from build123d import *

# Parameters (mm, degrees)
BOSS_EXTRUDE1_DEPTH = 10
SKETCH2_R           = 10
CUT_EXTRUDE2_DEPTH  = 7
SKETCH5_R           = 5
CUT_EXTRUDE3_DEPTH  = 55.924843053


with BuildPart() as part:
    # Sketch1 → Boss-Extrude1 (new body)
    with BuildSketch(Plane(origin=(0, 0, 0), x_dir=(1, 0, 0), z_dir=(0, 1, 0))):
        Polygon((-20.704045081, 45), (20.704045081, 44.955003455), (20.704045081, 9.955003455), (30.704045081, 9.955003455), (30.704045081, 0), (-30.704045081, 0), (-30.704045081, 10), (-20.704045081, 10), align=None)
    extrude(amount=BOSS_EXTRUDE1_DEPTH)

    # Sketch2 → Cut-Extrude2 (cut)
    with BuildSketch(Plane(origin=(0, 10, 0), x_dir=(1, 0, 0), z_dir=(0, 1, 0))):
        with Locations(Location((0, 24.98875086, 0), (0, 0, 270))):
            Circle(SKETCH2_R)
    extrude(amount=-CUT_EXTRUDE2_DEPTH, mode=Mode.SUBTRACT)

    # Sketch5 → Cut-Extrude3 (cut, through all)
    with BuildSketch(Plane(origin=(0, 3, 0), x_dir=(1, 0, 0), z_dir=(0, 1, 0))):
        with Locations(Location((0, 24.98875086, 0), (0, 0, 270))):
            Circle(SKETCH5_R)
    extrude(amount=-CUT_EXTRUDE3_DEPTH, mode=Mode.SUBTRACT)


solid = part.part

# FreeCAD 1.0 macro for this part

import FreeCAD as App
import Part
import Sketcher
from FreeCAD import Vector


def add_polygon(sketch, points):
    """Adds a closed chain of lines whose ends are joined by coincident constraints."""
    first, n = sketch.GeometryCount, len(points)
    for a, b in zip(points, points[1:] + points[:1]):
        sketch.addGeometry(Part.LineSegment(App.Vector(*a, 0), App.Vector(*b, 0)), False)
    for i in range(n):
        sketch.addConstraint(Sketcher.Constraint("Coincident", first + i, 2, first + (i + 1) % n, 1))

doc = App.newDocument("Part")
body = doc.addObject("PartDesign::Body", "Body")

sketch1 = body.newObject("Sketcher::SketchObject", "Sketch")
sketch1.AttachmentSupport = (doc.getObject("XZ_Plane"), [""])
sketch1.MapMode = "FlatFace"
add_polygon(sketch1, [(20.704045, -44.955003), (-20.704045, -45), (-20.704045, -10), (-30.704045, -10), (-30.704045, 0), (30.704045, 0), (30.704045, -9.955003), (20.704045, -9.955003)])
sketch1.addConstraint(Sketcher.Constraint("Vertical", 1))
sketch1.addConstraint(Sketcher.Constraint("Horizontal", 2))
sketch1.addConstraint(Sketcher.Constraint("Vertical", 3))
sketch1.addConstraint(Sketcher.Constraint("Horizontal", 4))
sketch1.addConstraint(Sketcher.Constraint("Vertical", 5))
sketch1.addConstraint(Sketcher.Constraint("Horizontal", 6))
sketch1.addConstraint(Sketcher.Constraint("Vertical", 7))
sketch1.addConstraint(Sketcher.Constraint("Symmetric", 3, 2, 4, 2, -1, 1))
sketch1.addConstraint(Sketcher.Constraint("Equal", 2, 6))
sketch1.addConstraint(Sketcher.Constraint("Equal", 6, 3))
sketch1.addConstraint(Sketcher.Constraint("Equal", 1, 7))
sketch1.addConstraint(Sketcher.Constraint("DistanceX", 2, 2, 2, 1, 10.0))
sketch1.addConstraint(Sketcher.Constraint("DistanceY", 1, 1, 1, 2, 35.0))
sketch1.addConstraint(Sketcher.Constraint("DistanceX", 4, 1, 4, 2, 61.40809))
sketch1.addConstraint(Sketcher.Constraint("DistanceY", 5, 2, 5, 1, 9.955003))
pad1 = body.newObject("PartDesign::Pad", "Pad")
pad1.Profile = sketch1
pad1.Length = 10
pad1.Reversed = True

sketch2 = body.newObject("Sketcher::SketchObject", "Sketch001")
sketch2.AttachmentSupport = (doc.getObject("XZ_Plane"), [""])
sketch2.MapMode = "FlatFace"
sketch2.AttachmentOffset = App.Placement(Vector(0, 0, -10), App.Rotation())
sketch2.addGeometry(Part.Circle(Vector(0, -24.988751, 0), Vector(0, 0, 1), 10), False)
sketch2.addConstraint(Sketcher.Constraint("PointOnObject", 0, 3, -2))
sketch2.addConstraint(Sketcher.Constraint("Diameter", 0, 20.0))
sketch2.addConstraint(Sketcher.Constraint("DistanceY", 0, 3, -1, 1, 24.988751))
pocket1 = body.newObject("PartDesign::Pocket", "Pocket")
pocket1.Profile = sketch2
pocket1.Length = 7
pocket1.Reversed = True

sketch3 = body.newObject("Sketcher::SketchObject", "Sketch002")
sketch3.AttachmentSupport = (doc.getObject("XZ_Plane"), [""])
sketch3.MapMode = "FlatFace"
sketch3.AttachmentOffset = App.Placement(Vector(0, 0, -3), App.Rotation())
sketch3.addGeometry(Part.Circle(Vector(0, -24.988751, 0), Vector(0, 0, 1), 5), False)
sketch3.addConstraint(Sketcher.Constraint("PointOnObject", 0, 3, -2))
sketch3.addConstraint(Sketcher.Constraint("Diameter", 0, 10.0))
sketch3.addConstraint(Sketcher.Constraint("DistanceY", 0, 3, -1, 1, 24.988751))
pocket2 = body.newObject("PartDesign::Pocket", "Pocket001")
pocket2.Profile = sketch3
pocket2.Type = "ThroughAll"
pocket2.Reversed = True

doc.recompute()
